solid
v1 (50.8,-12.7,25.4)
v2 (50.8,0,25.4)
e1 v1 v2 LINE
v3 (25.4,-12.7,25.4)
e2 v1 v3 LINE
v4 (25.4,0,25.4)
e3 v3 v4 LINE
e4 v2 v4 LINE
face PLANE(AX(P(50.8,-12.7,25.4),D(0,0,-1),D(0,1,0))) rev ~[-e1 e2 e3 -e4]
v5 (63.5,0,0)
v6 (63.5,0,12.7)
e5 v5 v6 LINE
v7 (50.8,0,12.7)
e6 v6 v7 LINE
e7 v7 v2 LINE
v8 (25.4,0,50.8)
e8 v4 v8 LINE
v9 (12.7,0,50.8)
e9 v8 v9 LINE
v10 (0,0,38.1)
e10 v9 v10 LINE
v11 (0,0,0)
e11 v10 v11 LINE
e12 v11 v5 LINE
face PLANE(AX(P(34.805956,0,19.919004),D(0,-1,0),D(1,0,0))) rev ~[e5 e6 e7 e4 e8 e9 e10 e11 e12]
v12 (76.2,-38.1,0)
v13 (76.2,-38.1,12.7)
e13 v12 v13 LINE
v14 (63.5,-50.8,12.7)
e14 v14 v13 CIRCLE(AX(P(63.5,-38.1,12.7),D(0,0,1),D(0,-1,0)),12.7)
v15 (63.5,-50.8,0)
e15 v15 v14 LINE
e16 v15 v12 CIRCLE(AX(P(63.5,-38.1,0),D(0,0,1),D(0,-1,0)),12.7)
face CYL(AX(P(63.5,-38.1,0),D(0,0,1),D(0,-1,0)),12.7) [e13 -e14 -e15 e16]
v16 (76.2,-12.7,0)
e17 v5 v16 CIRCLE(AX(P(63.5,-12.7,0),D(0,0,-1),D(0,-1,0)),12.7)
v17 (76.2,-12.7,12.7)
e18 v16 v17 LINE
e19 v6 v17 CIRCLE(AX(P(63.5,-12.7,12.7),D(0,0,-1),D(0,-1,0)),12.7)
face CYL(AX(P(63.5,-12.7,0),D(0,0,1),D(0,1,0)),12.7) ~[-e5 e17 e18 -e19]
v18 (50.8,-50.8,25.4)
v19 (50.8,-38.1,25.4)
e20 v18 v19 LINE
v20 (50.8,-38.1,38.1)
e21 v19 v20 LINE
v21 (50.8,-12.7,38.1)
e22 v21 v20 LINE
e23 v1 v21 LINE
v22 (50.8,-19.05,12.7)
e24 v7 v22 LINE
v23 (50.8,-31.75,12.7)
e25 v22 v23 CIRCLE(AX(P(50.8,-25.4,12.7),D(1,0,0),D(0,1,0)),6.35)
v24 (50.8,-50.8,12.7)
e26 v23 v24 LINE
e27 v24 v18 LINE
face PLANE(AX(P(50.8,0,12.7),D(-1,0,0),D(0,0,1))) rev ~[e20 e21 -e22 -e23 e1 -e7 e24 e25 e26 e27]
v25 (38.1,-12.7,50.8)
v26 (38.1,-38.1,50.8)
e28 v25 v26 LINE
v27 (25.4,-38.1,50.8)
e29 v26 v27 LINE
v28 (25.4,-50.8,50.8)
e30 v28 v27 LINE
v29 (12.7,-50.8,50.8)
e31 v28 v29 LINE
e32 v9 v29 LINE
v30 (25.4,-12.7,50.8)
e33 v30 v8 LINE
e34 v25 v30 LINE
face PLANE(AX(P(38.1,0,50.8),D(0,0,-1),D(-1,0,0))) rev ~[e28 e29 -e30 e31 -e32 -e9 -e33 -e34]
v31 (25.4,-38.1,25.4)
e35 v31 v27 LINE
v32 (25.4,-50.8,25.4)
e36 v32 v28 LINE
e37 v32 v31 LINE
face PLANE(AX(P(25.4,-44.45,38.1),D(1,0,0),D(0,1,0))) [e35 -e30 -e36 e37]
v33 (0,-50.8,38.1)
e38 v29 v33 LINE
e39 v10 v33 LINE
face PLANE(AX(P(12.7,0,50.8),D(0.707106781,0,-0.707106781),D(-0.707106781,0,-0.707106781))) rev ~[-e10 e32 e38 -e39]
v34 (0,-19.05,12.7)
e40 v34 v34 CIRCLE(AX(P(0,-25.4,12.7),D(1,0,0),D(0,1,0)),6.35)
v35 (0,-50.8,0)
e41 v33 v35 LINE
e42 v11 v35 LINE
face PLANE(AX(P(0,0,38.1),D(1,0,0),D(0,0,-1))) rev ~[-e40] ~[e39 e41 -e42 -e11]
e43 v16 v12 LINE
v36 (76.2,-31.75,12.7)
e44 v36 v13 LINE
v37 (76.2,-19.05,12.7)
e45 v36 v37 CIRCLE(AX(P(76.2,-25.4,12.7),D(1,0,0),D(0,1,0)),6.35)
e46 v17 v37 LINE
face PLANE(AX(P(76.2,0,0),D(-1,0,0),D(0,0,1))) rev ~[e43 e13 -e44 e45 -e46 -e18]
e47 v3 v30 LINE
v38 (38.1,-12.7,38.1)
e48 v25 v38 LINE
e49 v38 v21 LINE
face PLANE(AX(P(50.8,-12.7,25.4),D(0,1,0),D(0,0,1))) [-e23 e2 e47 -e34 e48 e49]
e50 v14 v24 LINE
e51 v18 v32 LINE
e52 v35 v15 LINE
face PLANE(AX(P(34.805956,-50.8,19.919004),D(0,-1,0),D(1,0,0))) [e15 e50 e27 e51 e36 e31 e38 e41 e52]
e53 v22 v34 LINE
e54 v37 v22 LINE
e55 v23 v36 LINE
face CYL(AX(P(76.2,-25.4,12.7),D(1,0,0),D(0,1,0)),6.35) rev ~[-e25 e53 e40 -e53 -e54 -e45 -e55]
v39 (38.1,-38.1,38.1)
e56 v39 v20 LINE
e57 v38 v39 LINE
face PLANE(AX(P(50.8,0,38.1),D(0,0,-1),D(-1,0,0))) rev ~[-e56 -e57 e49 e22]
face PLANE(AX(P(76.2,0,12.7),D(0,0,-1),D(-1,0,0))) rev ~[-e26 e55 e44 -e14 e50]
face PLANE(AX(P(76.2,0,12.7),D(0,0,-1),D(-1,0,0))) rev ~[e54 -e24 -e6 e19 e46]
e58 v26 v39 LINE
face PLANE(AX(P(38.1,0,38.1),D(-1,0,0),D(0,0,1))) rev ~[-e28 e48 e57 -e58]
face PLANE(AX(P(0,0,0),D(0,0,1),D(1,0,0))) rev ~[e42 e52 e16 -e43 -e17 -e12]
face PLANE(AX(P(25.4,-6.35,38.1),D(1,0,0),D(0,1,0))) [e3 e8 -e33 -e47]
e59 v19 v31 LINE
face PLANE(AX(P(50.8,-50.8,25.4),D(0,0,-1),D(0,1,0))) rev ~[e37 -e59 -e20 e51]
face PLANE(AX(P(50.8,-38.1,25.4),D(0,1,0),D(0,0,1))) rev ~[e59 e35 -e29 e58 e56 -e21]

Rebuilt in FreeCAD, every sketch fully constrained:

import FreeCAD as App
import Part
import Sketcher
Q = App.Units.Quantity


def edges_at(feature, points):
    """Names of the edges that pass closest to the given points."""
    edges = feature.Shape.Edges
    near = lambda p: min(range(len(edges)), key=lambda i: edges[i].distToShape(Part.Vertex(*p))[0])
    return sorted({f"Edge{near(p) + 1}" for p in points})

doc = App.newDocument("Part")
body = doc.addObject("PartDesign::Body", "Body")

sketch1 = body.newObject("Sketcher::SketchObject", "Sketch")
sketch1.AttachmentSupport = (doc.getObject("XZ_Plane"), [""])
sketch1.MapMode = "FlatFace"
sketch1.addGeometry([
    Part.LineSegment(App.Vector(0, 38, 0), App.Vector(0, 0, 0)),
    Part.LineSegment(App.Vector(0, 0, 0), App.Vector(76, 0, 0)),
    Part.LineSegment(App.Vector(76, 0, 0), App.Vector(76, 13, 0)),
    Part.LineSegment(App.Vector(76, 13, 0), App.Vector(51, 13, 0)),
    Part.LineSegment(App.Vector(51, 13, 0), App.Vector(51, 38, 0)),
    Part.LineSegment(App.Vector(51, 38, 0), App.Vector(38, 38, 0)),
    Part.LineSegment(App.Vector(38, 38, 0), App.Vector(38, 51, 0)),
    Part.LineSegment(App.Vector(38, 51, 0), App.Vector(13, 51, 0)),
    Part.LineSegment(App.Vector(13, 51, 0), App.Vector(0, 38, 0)),
], False)
sketch1.addConstraint([
    Sketcher.Constraint("Coincident", 0, 2, 1, 1),
    Sketcher.Constraint("Coincident", 1, 2, 2, 1),
    Sketcher.Constraint("Coincident", 2, 2, 3, 1),
    Sketcher.Constraint("Coincident", 3, 2, 4, 1),
    Sketcher.Constraint("Coincident", 4, 2, 5, 1),
    Sketcher.Constraint("Coincident", 5, 2, 6, 1),
    Sketcher.Constraint("Coincident", 6, 2, 7, 1),
    Sketcher.Constraint("Coincident", 7, 2, 8, 1),
    Sketcher.Constraint("Coincident", 8, 2, 0, 1),
    Sketcher.Constraint("Vertical", 0),
    Sketcher.Constraint("Horizontal", 1),
    Sketcher.Constraint("Vertical", 2),
    Sketcher.Constraint("Horizontal", 3),
    Sketcher.Constraint("Vertical", 4),
    Sketcher.Constraint("Horizontal", 5),
    Sketcher.Constraint("Vertical", 6),
    Sketcher.Constraint("Horizontal", 7),
    Sketcher.Constraint("Coincident", 0, 2, -1, 1),
    Sketcher.Constraint("Horizontal", 5, 2, 8, 2),
    Sketcher.Constraint("Equal", 3, 7),
    Sketcher.Constraint("Equal", 5, 2),
    Sketcher.Constraint("Equal", 7, 4),
    Sketcher.Constraint("Equal", 2, 6),
    Sketcher.Constraint("DistanceX", 1, 1, 1, 2, Q("3 in")),
    Sketcher.Constraint("DistanceX", 3, 2, 3, 1, Q("1 in")),
    Sketcher.Constraint("DistanceX", 5, 2, 5, 1, Q("0.5 in")),
])
pad1 = body.newObject("PartDesign::Pad", "Pad")
pad1.Profile = sketch1
pad1.Length = Q("2 in")

sketch2 = body.newObject("Sketcher::SketchObject", "Sketch001")
sketch2.AttachmentSupport = (doc.getObject("YZ_Plane"), [""])
sketch2.MapMode = "FlatFace"
sketch2.AttachmentOffset = App.Placement(App.Vector(0, 0, 2 * 25.4), App.Rotation())
sketch2.addGeometry([
    Part.LineSegment(App.Vector(-51, 51, 0), App.Vector(-51, 25, 0)),
    Part.LineSegment(App.Vector(-51, 25, 0), App.Vector(-38, 25, 0)),
    Part.LineSegment(App.Vector(-38, 25, 0), App.Vector(-38, 51, 0)),
    Part.LineSegment(App.Vector(-38, 51, 0), App.Vector(-51, 51, 0)),
    Part.LineSegment(App.Vector(-13, 51, 0), App.Vector(-13, 25, 0)),
    Part.LineSegment(App.Vector(-13, 25, 0), App.Vector(0, 25, 0)),
    Part.LineSegment(App.Vector(0, 25, 0), App.Vector(0, 51, 0)),
    Part.LineSegment(App.Vector(0, 51, 0), App.Vector(-13, 51, 0)),
], False)
sketch2.addConstraint([
    Sketcher.Constraint("Coincident", 0, 2, 1, 1),
    Sketcher.Constraint("Coincident", 1, 2, 2, 1),
    Sketcher.Constraint("Coincident", 2, 2, 3, 1),
    Sketcher.Constraint("Coincident", 3, 2, 0, 1),
    Sketcher.Constraint("Coincident", 4, 2, 5, 1),
    Sketcher.Constraint("Coincident", 5, 2, 6, 1),
    Sketcher.Constraint("Coincident", 6, 2, 7, 1),
    Sketcher.Constraint("Coincident", 7, 2, 4, 1),
    Sketcher.Constraint("Vertical", 0),
    Sketcher.Constraint("Horizontal", 1),
    Sketcher.Constraint("Vertical", 2),
    Sketcher.Constraint("Horizontal", 3),
    Sketcher.Constraint("Vertical", 4),
    Sketcher.Constraint("Horizontal", 5),
    Sketcher.Constraint("Vertical", 6),
    Sketcher.Constraint("Horizontal", 7),
    Sketcher.Constraint("PointOnObject", 5, 2, -2),
    Sketcher.Constraint("Horizontal", 1, 2, 4, 2),
    Sketcher.Constraint("Horizontal", 3, 2, 6, 2),
    Sketcher.Constraint("Equal", 3, 5),
    Sketcher.Constraint("DistanceY", 0, 2, 0, 1, Q("1 in")),
    Sketcher.Constraint("DistanceX", 1, 1, 1, 2, Q("0.5 in")),
    Sketcher.Constraint("DistanceX", 0, 2, -1, 1, Q("2 in")),
    Sketcher.Constraint("DistanceY", -1, 1, 0, 2, Q("1 in")),
])
pocket1 = body.newObject("PartDesign::Pocket", "Pocket")
pocket1.Profile = sketch2
pocket1.Length = Q("1 in")
doc.recompute()

fillet = body.newObject("PartDesign::Fillet", "Fillet")
fillet.Base = (pocket1, edges_at(pocket1, [(76.2, 0, 6.35), (76.2, -50.8, 6.35)]))
fillet.Radius = Q("0.5 in")

sketch3 = body.newObject("Sketcher::SketchObject", "Sketch002")
sketch3.AttachmentSupport = (doc.getObject("YZ_Plane"), [""])
sketch3.MapMode = "FlatFace"
sketch3.AttachmentOffset = App.Placement(App.Vector(0, 0, 3 * 25.4), App.Rotation())
sketch3.addGeometry(Part.Circle(App.Vector(-25, 13, 0), App.Vector(0, 0, 1), 6), False)
sketch3.addConstraint([
    Sketcher.Constraint("Diameter", 0, Q("0.5 in")),
    Sketcher.Constraint("DistanceX", 0, 3, -1, 1, Q("1 in")),
    Sketcher.Constraint("DistanceY", -1, 1, 0, 3, Q("0.5 in")),
])
pocket2 = body.newObject("PartDesign::Pocket", "Pocket001")
pocket2.Profile = sketch3
pocket2.Length = Q("3 in")

doc.recompute()
